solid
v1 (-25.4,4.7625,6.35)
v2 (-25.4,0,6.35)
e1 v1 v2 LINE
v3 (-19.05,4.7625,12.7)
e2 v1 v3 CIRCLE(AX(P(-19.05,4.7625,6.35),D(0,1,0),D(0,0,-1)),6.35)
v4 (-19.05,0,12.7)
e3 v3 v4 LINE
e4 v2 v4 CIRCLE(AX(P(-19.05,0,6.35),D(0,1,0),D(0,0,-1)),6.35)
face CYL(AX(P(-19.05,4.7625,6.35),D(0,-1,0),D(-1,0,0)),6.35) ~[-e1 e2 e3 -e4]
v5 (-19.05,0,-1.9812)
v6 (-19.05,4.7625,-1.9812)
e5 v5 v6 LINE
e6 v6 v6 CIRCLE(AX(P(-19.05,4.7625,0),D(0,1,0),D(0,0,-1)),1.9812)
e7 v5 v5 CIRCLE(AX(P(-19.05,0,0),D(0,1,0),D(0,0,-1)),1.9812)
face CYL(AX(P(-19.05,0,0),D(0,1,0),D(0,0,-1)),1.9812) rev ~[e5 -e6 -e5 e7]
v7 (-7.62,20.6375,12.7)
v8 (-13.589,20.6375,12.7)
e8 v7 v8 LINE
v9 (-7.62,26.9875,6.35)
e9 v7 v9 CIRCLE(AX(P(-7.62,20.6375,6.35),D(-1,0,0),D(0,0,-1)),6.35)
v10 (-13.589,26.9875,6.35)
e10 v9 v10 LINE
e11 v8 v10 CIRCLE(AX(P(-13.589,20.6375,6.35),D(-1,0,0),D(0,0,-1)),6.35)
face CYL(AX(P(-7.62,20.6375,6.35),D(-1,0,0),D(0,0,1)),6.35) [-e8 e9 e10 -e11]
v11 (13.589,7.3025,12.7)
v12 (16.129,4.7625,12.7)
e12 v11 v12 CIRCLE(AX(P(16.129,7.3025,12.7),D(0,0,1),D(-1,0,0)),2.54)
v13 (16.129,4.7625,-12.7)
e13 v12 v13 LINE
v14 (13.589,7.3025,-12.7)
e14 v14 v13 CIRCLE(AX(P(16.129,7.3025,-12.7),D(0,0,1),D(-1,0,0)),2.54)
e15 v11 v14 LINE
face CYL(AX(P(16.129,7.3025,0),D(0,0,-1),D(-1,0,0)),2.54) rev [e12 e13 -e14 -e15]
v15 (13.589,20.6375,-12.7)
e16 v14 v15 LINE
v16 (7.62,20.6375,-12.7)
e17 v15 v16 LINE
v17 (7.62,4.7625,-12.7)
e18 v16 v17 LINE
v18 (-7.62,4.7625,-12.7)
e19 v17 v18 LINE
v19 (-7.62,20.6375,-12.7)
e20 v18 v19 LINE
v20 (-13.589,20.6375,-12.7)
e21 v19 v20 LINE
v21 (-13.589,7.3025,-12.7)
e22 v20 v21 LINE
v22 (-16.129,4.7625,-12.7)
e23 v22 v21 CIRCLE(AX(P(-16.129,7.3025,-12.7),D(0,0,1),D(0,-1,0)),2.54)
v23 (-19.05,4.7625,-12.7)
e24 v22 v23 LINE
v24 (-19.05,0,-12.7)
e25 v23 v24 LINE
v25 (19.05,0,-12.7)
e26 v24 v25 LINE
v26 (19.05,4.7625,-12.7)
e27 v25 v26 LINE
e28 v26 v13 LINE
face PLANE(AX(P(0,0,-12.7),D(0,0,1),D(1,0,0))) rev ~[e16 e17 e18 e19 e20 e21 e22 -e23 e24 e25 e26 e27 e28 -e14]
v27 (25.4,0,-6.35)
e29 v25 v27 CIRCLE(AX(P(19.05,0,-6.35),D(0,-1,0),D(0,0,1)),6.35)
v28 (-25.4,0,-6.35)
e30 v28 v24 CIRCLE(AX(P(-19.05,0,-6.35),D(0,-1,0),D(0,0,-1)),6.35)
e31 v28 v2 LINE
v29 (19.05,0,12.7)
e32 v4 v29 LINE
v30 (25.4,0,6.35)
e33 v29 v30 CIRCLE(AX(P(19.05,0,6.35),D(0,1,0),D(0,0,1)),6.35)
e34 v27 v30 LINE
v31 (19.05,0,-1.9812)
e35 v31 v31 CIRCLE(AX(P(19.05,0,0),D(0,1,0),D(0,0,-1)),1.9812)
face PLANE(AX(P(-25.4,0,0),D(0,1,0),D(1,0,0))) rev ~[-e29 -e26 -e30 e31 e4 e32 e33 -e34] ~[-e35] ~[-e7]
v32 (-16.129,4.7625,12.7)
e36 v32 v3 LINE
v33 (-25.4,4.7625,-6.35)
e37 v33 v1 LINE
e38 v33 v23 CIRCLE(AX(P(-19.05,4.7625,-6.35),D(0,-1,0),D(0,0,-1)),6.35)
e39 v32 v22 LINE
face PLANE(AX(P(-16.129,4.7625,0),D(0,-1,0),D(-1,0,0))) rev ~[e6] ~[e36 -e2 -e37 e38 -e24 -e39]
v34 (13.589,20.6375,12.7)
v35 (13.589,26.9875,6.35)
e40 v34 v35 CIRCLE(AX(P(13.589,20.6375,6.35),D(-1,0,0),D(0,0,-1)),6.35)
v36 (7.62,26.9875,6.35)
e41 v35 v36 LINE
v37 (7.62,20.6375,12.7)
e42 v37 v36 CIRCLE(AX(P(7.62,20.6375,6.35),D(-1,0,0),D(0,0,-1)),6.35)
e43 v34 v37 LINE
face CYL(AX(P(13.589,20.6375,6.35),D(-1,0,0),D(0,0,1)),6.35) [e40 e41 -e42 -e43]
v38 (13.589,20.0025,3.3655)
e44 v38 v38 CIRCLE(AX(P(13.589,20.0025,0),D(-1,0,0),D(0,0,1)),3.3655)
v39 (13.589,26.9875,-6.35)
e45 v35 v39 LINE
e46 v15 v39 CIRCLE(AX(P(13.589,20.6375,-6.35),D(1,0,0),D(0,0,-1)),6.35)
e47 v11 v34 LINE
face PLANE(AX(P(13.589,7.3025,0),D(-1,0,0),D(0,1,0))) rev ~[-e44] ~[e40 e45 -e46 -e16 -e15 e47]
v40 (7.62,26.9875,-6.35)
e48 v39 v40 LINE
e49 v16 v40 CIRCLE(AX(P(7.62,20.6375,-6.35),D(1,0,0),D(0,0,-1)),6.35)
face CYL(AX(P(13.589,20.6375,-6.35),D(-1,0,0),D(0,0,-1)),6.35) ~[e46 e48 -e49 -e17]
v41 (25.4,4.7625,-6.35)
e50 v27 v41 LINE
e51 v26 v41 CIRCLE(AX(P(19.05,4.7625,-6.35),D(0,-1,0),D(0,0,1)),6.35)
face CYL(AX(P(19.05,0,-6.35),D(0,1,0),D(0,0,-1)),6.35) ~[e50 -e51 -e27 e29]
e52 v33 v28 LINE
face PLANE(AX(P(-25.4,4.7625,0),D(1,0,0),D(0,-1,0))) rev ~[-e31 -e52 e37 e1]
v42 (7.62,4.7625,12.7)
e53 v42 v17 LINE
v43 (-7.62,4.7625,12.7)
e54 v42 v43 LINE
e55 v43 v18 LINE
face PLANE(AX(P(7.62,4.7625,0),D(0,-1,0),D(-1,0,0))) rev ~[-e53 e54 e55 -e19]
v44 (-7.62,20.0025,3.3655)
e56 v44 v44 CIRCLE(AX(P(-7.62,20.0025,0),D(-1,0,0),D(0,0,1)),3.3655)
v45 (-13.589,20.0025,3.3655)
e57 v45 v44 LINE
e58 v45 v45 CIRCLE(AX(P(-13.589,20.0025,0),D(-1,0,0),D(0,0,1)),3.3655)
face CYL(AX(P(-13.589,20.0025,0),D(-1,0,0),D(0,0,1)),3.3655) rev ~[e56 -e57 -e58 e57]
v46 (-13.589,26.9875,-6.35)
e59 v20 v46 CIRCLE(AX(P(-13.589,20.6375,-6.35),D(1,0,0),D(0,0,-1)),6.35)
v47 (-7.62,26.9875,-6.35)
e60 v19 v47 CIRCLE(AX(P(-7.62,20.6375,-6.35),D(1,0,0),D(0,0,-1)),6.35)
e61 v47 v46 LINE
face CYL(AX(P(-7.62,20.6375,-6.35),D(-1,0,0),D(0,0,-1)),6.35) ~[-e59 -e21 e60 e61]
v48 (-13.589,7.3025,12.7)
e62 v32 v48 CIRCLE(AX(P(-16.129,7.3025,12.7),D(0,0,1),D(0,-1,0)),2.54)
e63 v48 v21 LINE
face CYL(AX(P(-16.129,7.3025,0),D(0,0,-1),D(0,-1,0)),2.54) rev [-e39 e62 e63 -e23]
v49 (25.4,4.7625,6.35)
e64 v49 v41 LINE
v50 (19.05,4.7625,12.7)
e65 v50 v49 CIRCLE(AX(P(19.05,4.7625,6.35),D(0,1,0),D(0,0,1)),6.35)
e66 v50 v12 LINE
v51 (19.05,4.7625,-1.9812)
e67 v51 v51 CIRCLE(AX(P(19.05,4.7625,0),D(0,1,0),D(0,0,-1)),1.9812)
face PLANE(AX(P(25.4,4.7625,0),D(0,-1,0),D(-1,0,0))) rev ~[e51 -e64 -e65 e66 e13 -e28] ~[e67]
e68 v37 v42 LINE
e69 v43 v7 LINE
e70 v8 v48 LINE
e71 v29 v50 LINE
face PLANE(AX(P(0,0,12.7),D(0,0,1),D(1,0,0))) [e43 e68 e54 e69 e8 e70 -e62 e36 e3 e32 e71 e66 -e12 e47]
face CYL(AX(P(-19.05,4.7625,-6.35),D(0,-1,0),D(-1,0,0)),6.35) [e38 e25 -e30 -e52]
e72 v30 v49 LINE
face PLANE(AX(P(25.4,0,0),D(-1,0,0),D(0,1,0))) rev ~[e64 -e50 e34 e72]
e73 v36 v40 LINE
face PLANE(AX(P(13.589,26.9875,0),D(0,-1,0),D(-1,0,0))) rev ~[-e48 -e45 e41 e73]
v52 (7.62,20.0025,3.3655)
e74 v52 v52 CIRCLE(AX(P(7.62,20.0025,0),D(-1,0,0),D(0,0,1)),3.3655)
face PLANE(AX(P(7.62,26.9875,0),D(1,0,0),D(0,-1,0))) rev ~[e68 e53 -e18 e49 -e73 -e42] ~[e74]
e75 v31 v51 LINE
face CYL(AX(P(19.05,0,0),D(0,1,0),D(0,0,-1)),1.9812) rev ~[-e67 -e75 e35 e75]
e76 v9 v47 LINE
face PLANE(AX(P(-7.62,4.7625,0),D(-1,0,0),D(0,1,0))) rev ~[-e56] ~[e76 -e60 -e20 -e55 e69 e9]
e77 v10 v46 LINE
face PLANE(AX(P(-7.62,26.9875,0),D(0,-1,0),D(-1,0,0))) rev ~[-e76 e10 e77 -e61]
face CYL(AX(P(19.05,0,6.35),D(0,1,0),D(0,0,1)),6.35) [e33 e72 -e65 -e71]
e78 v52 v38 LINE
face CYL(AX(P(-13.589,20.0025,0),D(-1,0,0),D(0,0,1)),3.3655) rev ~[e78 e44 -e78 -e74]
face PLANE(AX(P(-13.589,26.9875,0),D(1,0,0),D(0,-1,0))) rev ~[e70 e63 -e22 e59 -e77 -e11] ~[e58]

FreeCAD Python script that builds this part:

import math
import FreeCAD as App
import Part
import Sketcher

V = App.Vector
Q = App.Units.Quantity


def edges_at(feature, points):
    """Names of the edges that pass closest to the given points."""
    edges = feature.Shape.Edges
    near = lambda p: min(range(len(edges)), key=lambda i: edges[i].distToShape(Part.Vertex(*p))[0])
    return sorted({f"Edge{near(p) + 1}" for p in points})

doc = App.newDocument("Part")
body = doc.addObject("PartDesign::Body", "Body")

# Sketch on XY plane
sketch1 = body.newObject("Sketcher::SketchObject", "Sketch")
sketch1.AttachmentSupport = (doc.getObject("XY_Plane"), [""])
sketch1.MapMode = "FlatFace"
sketch1.addGeometry([
    Part.LineSegment(V(-16.1, 4.8, 0), V(-25.4, 4.8, 0)),  # 0
    Part.LineSegment(V(-25.4, 4.8, 0), V(-25.4, 0, 0)),  # 1
    Part.LineSegment(V(-25.4, 0, 0), V(25.4, 0, 0)),  # 2
    Part.LineSegment(V(25.4, 0, 0), V(25.4, 4.8, 0)),  # 3
    Part.LineSegment(V(25.4, 4.8, 0), V(16.1, 4.8, 0)),  # 4
    Part.ArcOfCircle(Part.Circle(V(16.1, 7.3, 0), V(0, 0, 1), 2.5), math.radians(180), math.radians(270)),  # 5
    Part.LineSegment(V(13.6, 7.3, 0), V(13.6, 27, 0)),  # 6
    Part.LineSegment(V(13.6, 27, 0), V(7.6, 27, 0)),  # 7
    Part.LineSegment(V(7.6, 27, 0), V(7.6, 4.8, 0)),  # 8
    Part.LineSegment(V(7.6, 4.8, 0), V(-7.6, 4.8, 0)),  # 9
    Part.LineSegment(V(-7.6, 4.8, 0), V(-7.6, 27, 0)),  # 10
    Part.LineSegment(V(-7.6, 27, 0), V(-13.6, 27, 0)),  # 11
    Part.LineSegment(V(-13.6, 27, 0), V(-13.6, 7.3, 0)),  # 12
    Part.ArcOfCircle(Part.Circle(V(-16.1, 7.3, 0), V(0, 0, 1), 2.5), math.radians(-90), math.radians(0)),  # 13
], False)
sketch1.addConstraint([
    Sketcher.Constraint("Coincident", 0, 2, 1, 1),
    Sketcher.Constraint("Coincident", 1, 2, 2, 1),
    Sketcher.Constraint("Coincident", 2, 2, 3, 1),
    Sketcher.Constraint("Coincident", 3, 2, 4, 1),
    Sketcher.Constraint("Tangent", 4, 2, 5, 2),
    Sketcher.Constraint("Tangent", 5, 1, 6, 1),
    Sketcher.Constraint("Coincident", 6, 2, 7, 1),
    Sketcher.Constraint("Coincident", 7, 2, 8, 1),
    Sketcher.Constraint("Coincident", 8, 2, 9, 1),
    Sketcher.Constraint("Coincident", 9, 2, 10, 1),
    Sketcher.Constraint("Coincident", 10, 2, 11, 1),
    Sketcher.Constraint("Coincident", 11, 2, 12, 1),
    Sketcher.Constraint("Tangent", 12, 2, 13, 2),
    Sketcher.Constraint("Tangent", 13, 1, 0, 1),
    Sketcher.Constraint("Horizontal", 0),
    Sketcher.Constraint("Vertical", 1),
    Sketcher.Constraint("Horizontal", 2),
    Sketcher.Constraint("Vertical", 3),
    Sketcher.Constraint("Horizontal", 4),
    Sketcher.Constraint("Vertical", 6),
    Sketcher.Constraint("Horizontal", 7),
    Sketcher.Constraint("Vertical", 8),
    Sketcher.Constraint("Horizontal", 9),
    Sketcher.Constraint("Vertical", 10),
    Sketcher.Constraint("Horizontal", 11),
    Sketcher.Constraint("Vertical", 12),
    Sketcher.Constraint("Equal", 5, 13),
    Sketcher.Constraint("Symmetric", 1, 2, 2, 2, -1, 1),
    Sketcher.Constraint("Symmetric", 5, 3, 13, 3, -2),
    Sketcher.Constraint("Symmetric", 7, 2, 10, 2, -2),
    Sketcher.Constraint("Horizontal", 4, 2, 8, 2),
    Sketcher.Constraint("Radius", 5, Q("0.1 in")),
    Sketcher.Constraint("DistanceX", 2, 1, 2, 2, Q("2 in")),
    Sketcher.Constraint("DistanceX", 9, 2, 9, 1, Q("0.6 in")),
    Sketcher.Constraint("DistanceX", 7, 2, 7, 1, Q("0.235 in")),
    Sketcher.Constraint("DistanceY", 1, 2, 1, 1, Q("0.1875 in")),
    Sketcher.Constraint("DistanceY", -1, 1, 6, 2, Q("1.0625 in")),
])
pad1 = body.newObject("PartDesign::Pad", "Pad")
pad1.Profile = sketch1
pad1.Length = Q("1 in")
pad1.Midplane = True
doc.recompute()

fillet = body.newObject("PartDesign::Fillet", "Fillet")
fillet.Base = (pad1, edges_at(pad1, [
    (-10.604, 26.988, 12.7),
    (10.604, 26.988, 12.7),
    (-10.604, 26.988, -12.7),
    (10.604, 26.988, -12.7),
    (25.4, 2.381, 12.7),
    (25.4, 2.381, -12.7),
    (-25.4, 2.381, 12.7),
    (-25.4, 2.381, -12.7),
]))
fillet.Radius = Q("0.25 in")

# Sketch on YZ plane
sketch2 = body.newObject("Sketcher::SketchObject", "Sketch001")
sketch2.AttachmentSupport = (doc.getObject("YZ_Plane"), [""])
sketch2.MapMode = "FlatFace"
sketch2.AttachmentOffset = App.Placement(V(0, 0, -0.535 * 25.4), App.Rotation())
sketch2.addGeometry(Part.Circle(V(20, 0, 0), V(0, 0, 1), 3.4), False)
sketch2.addConstraint([
    Sketcher.Constraint("PointOnObject", 0, 3, -1),
    Sketcher.Constraint("Diameter", 0, Q("0.265 in")),
    Sketcher.Constraint("DistanceX", -1, 1, 0, 3, Q("0.7875 in")),
])
pocket1 = body.newObject("PartDesign::Pocket", "Pocket")
pocket1.Profile = sketch2
pocket1.Type = "ThroughAll"
pocket1.Reversed = True

# Sketch on XZ plane
sketch3 = body.newObject("Sketcher::SketchObject", "Sketch002")
sketch3.AttachmentSupport = (doc.getObject("XZ_Plane"), [""])
sketch3.MapMode = "FlatFace"
sketch3.addGeometry([
    Part.Circle(V(-19.1, 0, 0), V(0, 0, 1), 2),
    Part.Circle(V(19.1, 0, 0), V(0, 0, 1), 2),
], False)
sketch3.addConstraint([
    Sketcher.Constraint("Equal", 0, 1),
    Sketcher.Constraint("Symmetric", 0, 3, 1, 3, -1, 1),
    Sketcher.Constraint("PointOnObject", 0, 3, -1),
    Sketcher.Constraint("Diameter", 0, Q("0.156 in")),
    Sketcher.Constraint("DistanceX", 0, 3, 1, 3, Q("1.5 in")),
])
doc.recompute()
hole = body.newObject("PartDesign::Hole", "Hole")
hole.Profile = sketch3
hole.ThreadType = "None"
hole.Diameter = Q("0.156 in")
hole.DepthType = "ThroughAll"

doc.recompute()
